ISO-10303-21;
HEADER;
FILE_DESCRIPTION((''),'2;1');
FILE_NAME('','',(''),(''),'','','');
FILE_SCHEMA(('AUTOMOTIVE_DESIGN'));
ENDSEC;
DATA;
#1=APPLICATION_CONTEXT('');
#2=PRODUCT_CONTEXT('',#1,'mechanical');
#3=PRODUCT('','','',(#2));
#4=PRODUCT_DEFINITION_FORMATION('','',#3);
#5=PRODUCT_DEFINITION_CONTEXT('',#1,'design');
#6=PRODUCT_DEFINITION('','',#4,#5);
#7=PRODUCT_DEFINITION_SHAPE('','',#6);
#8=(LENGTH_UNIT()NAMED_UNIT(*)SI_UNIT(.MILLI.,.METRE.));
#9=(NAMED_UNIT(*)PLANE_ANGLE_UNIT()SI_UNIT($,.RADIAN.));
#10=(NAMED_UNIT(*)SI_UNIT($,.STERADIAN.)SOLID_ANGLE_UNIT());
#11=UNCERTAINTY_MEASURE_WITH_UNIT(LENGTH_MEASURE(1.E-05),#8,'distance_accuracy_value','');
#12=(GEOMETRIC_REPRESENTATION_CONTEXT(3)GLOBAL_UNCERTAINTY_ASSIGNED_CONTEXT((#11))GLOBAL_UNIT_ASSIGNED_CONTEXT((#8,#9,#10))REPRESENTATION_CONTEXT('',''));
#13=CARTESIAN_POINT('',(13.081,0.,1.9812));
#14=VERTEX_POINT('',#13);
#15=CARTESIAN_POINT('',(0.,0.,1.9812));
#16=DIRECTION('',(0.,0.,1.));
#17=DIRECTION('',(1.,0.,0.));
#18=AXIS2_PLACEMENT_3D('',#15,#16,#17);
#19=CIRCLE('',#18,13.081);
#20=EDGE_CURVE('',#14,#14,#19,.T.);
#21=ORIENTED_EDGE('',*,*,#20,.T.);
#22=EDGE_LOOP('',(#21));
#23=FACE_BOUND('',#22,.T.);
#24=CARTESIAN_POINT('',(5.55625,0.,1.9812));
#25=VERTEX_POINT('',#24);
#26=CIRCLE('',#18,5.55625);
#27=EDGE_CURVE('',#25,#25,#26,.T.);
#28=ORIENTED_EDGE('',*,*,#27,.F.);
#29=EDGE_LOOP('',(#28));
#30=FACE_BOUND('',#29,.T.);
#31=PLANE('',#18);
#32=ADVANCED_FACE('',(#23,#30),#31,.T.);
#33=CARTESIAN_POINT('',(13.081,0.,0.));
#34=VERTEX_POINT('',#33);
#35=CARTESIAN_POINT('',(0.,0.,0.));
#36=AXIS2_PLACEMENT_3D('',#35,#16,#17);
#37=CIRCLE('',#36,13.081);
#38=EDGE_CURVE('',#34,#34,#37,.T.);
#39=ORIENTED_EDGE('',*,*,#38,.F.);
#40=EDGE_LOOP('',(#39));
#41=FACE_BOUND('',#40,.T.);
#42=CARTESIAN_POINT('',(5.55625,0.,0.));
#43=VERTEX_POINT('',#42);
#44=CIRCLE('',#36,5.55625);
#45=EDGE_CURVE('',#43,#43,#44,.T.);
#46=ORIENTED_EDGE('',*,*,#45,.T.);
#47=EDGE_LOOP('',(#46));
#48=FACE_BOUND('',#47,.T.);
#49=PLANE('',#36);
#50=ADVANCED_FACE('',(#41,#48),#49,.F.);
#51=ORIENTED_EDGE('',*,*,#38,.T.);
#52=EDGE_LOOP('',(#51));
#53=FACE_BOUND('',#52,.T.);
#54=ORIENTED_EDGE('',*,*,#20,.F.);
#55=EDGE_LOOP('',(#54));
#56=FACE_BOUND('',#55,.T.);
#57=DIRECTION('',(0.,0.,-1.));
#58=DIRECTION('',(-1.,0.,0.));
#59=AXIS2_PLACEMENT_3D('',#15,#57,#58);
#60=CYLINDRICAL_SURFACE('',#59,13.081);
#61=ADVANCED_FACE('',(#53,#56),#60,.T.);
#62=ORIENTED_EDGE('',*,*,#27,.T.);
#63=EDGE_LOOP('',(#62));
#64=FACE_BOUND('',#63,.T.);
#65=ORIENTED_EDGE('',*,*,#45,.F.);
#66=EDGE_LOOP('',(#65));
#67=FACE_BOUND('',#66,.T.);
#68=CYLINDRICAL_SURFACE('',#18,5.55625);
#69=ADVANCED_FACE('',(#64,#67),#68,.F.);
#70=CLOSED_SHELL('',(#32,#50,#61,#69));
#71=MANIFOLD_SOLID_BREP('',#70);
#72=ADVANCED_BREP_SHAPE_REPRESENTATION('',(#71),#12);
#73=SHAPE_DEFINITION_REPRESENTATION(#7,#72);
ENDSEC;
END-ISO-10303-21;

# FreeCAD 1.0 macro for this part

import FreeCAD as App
import Part
import Sketcher
from FreeCAD import Vector
Q = App.Units.Quantity

doc = App.newDocument("Part")
body = doc.addObject("PartDesign::Body", "Body")

# Sketch on XY plane
sketch1 = body.newObject("Sketcher::SketchObject", "Sketch")
sketch1.AttachmentSupport = (doc.getObject("XY_Plane"), [""])
sketch1.MapMode = "FlatFace"
sketch1.addGeometry(Part.Circle(Vector(0, 0, 0), Vector(0, 0, 1), 13), False)
sketch1.addConstraint([
    Sketcher.Constraint("Coincident", 0, 3, -1, 1),
    Sketcher.Constraint("Diameter", 0, Q("1.03 in")),
])
pad1 = body.newObject("PartDesign::Pad", "Pad")
pad1.Profile = sketch1
pad1.Length = Q("0.078 in")

# Sketch on XY plane
sketch2 = body.newObject("Sketcher::SketchObject", "Sketch001")
sketch2.AttachmentSupport = (doc.getObject("XY_Plane"), [""])
sketch2.MapMode = "FlatFace"
sketch2.AttachmentOffset = App.Placement(Vector(0, 0, 0.078 * 25.4), App.Rotation())
sketch2.addGeometry(Part.Circle(Vector(0, 0, 0), Vector(0, 0, 1), 6), False)
sketch2.addConstraint([
    Sketcher.Constraint("Coincident", 0, 3, -1, 1),
    Sketcher.Constraint("Diameter", 0, Q("0.4375 in")),
])
doc.recompute()
hole = body.newObject("PartDesign::Hole", "Hole")
hole.Profile = sketch2
hole.ThreadType = "None"
hole.Diameter = Q("0.4375 in")
hole.DepthType = "ThroughAll"

doc.recompute()
